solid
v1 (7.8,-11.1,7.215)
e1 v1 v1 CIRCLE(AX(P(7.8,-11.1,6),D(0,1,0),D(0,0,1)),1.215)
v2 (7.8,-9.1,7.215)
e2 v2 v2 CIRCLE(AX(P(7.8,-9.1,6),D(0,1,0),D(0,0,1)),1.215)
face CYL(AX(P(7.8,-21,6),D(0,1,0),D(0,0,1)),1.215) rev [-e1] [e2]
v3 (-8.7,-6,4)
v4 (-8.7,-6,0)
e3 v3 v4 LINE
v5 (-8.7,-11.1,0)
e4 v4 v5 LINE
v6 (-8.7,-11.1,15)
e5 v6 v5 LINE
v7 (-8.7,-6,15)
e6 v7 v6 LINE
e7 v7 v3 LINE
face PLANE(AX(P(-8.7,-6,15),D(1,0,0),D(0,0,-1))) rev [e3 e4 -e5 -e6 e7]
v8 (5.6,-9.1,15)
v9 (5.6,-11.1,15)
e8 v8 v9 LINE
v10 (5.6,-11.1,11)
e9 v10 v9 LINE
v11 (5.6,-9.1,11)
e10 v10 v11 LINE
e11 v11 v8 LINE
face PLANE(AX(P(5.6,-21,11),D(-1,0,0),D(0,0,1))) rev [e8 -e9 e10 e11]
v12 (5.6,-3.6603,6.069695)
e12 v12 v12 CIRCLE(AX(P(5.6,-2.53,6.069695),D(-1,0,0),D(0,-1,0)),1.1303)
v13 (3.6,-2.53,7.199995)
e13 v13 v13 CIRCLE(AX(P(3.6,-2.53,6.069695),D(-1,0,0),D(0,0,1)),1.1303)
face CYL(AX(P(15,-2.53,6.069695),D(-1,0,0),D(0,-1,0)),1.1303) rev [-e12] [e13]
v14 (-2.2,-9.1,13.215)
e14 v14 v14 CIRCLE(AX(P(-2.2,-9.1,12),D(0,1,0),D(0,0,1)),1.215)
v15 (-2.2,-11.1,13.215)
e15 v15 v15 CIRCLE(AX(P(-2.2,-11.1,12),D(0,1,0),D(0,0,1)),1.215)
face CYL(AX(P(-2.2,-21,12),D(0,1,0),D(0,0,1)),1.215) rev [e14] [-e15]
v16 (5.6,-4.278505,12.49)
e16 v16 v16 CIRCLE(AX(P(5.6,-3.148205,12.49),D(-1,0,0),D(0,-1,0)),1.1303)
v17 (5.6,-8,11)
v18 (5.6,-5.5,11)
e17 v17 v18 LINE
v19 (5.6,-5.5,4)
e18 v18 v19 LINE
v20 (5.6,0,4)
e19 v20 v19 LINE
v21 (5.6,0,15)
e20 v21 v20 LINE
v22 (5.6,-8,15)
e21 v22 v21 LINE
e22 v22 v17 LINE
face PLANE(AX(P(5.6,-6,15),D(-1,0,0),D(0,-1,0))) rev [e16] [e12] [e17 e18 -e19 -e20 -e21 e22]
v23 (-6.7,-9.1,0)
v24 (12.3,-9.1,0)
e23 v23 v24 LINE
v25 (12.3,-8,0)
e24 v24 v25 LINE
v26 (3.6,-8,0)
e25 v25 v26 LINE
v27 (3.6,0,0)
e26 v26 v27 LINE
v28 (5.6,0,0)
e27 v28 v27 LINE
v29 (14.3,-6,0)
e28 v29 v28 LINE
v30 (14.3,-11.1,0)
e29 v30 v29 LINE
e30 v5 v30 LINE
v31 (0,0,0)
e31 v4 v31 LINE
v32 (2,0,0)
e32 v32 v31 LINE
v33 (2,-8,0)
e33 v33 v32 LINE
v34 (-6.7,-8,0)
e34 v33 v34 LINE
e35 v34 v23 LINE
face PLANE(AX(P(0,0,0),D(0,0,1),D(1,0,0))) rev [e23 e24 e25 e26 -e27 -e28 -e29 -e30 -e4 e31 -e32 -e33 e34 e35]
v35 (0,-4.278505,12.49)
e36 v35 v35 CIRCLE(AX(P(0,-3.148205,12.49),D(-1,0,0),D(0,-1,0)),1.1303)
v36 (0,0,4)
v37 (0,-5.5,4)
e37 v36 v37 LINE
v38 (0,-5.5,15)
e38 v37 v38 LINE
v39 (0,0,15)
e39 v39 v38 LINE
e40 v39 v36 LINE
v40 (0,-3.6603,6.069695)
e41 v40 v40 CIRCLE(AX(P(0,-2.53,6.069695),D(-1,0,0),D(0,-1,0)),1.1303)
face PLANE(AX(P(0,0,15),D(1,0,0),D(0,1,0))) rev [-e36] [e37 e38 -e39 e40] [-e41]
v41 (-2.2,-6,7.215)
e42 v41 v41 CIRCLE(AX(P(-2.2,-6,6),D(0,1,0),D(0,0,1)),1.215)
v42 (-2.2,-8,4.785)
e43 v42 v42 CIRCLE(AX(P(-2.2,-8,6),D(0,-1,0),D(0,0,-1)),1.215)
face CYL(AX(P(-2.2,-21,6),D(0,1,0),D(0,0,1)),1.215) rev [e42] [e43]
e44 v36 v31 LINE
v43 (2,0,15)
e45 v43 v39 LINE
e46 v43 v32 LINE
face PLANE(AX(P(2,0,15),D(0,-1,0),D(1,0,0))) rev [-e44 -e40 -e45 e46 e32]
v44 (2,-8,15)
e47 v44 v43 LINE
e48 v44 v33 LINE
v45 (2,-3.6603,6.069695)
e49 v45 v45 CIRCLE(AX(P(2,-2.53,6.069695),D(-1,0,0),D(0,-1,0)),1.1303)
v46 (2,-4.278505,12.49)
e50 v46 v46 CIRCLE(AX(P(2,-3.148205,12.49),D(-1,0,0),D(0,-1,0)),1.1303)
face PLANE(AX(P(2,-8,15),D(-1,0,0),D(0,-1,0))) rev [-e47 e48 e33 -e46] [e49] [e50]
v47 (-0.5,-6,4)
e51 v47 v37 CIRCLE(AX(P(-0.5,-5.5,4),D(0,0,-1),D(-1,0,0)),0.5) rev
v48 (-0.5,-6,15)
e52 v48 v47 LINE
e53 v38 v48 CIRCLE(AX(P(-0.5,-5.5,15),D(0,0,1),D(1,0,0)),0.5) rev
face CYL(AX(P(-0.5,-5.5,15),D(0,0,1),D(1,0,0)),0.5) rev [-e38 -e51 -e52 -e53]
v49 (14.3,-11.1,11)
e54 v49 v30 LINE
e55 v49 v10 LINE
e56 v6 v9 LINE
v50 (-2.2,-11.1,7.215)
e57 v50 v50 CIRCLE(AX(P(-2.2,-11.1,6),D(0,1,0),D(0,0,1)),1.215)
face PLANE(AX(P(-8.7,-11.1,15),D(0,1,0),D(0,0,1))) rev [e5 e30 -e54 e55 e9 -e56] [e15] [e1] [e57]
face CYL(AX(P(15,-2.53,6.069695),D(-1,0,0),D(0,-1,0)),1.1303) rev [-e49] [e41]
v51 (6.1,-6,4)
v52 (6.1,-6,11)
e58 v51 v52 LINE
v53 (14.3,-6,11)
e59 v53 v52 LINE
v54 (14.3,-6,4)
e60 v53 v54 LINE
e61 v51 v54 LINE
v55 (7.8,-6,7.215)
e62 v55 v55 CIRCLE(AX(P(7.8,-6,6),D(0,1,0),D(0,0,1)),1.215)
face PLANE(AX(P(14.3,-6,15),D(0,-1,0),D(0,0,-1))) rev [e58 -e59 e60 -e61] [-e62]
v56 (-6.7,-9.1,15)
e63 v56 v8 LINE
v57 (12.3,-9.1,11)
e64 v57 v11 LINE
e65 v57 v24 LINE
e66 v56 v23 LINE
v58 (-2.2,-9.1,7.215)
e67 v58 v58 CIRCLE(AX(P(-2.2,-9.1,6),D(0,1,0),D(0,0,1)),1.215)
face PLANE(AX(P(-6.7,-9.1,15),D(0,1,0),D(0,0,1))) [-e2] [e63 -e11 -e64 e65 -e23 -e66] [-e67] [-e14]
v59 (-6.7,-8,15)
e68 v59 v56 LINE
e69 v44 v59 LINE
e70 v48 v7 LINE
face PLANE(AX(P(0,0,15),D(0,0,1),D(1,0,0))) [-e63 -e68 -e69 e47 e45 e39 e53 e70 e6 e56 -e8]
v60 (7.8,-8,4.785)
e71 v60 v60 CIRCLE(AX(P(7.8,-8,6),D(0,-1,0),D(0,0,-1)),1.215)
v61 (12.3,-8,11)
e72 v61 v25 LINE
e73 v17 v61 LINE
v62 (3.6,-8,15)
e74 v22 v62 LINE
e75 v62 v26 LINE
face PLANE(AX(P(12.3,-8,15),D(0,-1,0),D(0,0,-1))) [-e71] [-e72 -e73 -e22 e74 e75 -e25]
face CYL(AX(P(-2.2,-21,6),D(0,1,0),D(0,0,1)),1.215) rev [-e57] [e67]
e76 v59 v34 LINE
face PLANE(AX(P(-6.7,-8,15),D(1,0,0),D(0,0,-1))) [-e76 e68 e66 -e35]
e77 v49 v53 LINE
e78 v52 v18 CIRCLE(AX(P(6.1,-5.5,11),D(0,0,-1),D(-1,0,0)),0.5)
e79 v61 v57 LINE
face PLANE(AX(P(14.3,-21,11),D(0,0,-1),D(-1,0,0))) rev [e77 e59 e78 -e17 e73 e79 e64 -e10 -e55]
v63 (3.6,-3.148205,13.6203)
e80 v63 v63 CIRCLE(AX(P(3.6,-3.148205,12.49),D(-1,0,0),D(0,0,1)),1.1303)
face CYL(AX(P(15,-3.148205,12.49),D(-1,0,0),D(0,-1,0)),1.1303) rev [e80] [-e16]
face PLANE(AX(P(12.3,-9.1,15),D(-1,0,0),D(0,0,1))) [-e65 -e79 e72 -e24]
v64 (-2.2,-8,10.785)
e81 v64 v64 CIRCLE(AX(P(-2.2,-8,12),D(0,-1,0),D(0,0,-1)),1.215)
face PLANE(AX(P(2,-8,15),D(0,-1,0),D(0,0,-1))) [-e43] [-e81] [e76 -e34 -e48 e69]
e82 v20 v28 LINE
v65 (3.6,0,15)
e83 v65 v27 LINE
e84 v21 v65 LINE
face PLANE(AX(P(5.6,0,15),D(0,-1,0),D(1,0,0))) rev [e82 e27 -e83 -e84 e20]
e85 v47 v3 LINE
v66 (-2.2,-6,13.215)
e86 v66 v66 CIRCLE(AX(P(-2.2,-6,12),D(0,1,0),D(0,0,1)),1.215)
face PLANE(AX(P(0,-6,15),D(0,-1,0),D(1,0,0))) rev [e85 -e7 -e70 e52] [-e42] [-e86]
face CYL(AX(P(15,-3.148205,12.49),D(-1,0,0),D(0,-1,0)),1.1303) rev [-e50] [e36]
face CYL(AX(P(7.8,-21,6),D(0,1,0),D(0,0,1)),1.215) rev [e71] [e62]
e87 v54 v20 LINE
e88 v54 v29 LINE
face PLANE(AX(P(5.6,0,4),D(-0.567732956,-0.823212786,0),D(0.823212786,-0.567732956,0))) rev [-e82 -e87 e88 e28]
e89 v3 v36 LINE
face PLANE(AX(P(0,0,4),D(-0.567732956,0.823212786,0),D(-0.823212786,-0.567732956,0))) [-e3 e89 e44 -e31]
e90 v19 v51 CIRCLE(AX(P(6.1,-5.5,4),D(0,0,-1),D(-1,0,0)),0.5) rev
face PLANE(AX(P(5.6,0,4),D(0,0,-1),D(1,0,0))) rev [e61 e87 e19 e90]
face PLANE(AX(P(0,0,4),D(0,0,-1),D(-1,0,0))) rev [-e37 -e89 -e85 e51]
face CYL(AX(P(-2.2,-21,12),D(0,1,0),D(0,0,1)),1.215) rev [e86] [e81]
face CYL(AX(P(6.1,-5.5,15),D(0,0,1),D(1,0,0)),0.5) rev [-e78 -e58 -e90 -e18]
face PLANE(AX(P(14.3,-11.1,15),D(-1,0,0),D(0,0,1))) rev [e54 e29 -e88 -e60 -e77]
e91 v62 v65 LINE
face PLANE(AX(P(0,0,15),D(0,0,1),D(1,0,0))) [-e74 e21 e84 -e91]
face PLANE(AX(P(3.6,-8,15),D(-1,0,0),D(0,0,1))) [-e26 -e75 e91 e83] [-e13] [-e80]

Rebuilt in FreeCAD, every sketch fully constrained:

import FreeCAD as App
import Part
import Sketcher

V = App.Vector


def edges_at(feature, points):
    """Names of the edges that pass closest to the given points."""
    edges = feature.Shape.Edges
    near = lambda p: min(range(len(edges)), key=lambda i: edges[i].distToShape(Part.Vertex(*p))[0])
    return sorted({f"Edge{near(p) + 1}" for p in points})

doc = App.newDocument("Part")
body = doc.addObject("PartDesign::Body", "Body")

# Sketch on XY plane
sketch1 = body.newObject("Sketcher::SketchObject", "Sketch")
sketch1.AttachmentSupport = (doc.getObject("XY_Plane"), [""])
sketch1.MapMode = "FlatFace"
sketch1.addGeometry(Part.LineSegment(V(0, 0, 0), V(0, -6, 0)), False)
sketch1.addGeometry(Part.LineSegment(V(0, -6, 0), V(-8.7, -6, 0)), False)
sketch1.addGeometry(Part.LineSegment(V(-8.7, -6, 0), V(-8.7, -11.1, 0)), False)
sketch1.addGeometry(Part.LineSegment(V(-8.7, -11.1, 0), V(14.3, -11.1, 0)), False)
sketch1.addGeometry(Part.LineSegment(V(14.3, -11.1, 0), V(14.3, -6, 0)), False)
sketch1.addGeometry(Part.LineSegment(V(14.3, -6, 0), V(5.6, -6, 0)), False)
sketch1.addGeometry(Part.LineSegment(V(5.6, -6, 0), V(5.6, 0, 0)), False)
sketch1.addGeometry(Part.LineSegment(V(5.6, 0, 0), V(3.6, 0, 0)), False)
sketch1.addGeometry(Part.LineSegment(V(3.6, 0, 0), V(3.6, -8, 0)), False)
sketch1.addGeometry(Part.LineSegment(V(3.6, -8, 0), V(12.3, -8, 0)), False)
sketch1.addGeometry(Part.LineSegment(V(12.3, -8, 0), V(12.3, -9.1, 0)), False)
sketch1.addGeometry(Part.LineSegment(V(12.3, -9.1, 0), V(-6.7, -9.1, 0)), False)
sketch1.addGeometry(Part.LineSegment(V(-6.7, -9.1, 0), V(-6.7, -8, 0)), False)
sketch1.addGeometry(Part.LineSegment(V(-6.7, -8, 0), V(2, -8, 0)), False)
sketch1.addGeometry(Part.LineSegment(V(2, -8, 0), V(2, 0, 0)), False)
sketch1.addGeometry(Part.LineSegment(V(2, 0, 0), V(0, 0, 0)), False)
sketch1.addConstraint(Sketcher.Constraint("Coincident", 0, 2, 1, 1))
sketch1.addConstraint(Sketcher.Constraint("Coincident", 1, 2, 2, 1))
sketch1.addConstraint(Sketcher.Constraint("Coincident", 2, 2, 3, 1))
sketch1.addConstraint(Sketcher.Constraint("Coincident", 3, 2, 4, 1))
sketch1.addConstraint(Sketcher.Constraint("Coincident", 4, 2, 5, 1))
sketch1.addConstraint(Sketcher.Constraint("Coincident", 5, 2, 6, 1))
sketch1.addConstraint(Sketcher.Constraint("Coincident", 6, 2, 7, 1))
sketch1.addConstraint(Sketcher.Constraint("Coincident", 7, 2, 8, 1))
sketch1.addConstraint(Sketcher.Constraint("Coincident", 8, 2, 9, 1))
sketch1.addConstraint(Sketcher.Constraint("Coincident", 9, 2, 10, 1))
sketch1.addConstraint(Sketcher.Constraint("Coincident", 10, 2, 11, 1))
sketch1.addConstraint(Sketcher.Constraint("Coincident", 11, 2, 12, 1))
sketch1.addConstraint(Sketcher.Constraint("Coincident", 12, 2, 13, 1))
sketch1.addConstraint(Sketcher.Constraint("Coincident", 13, 2, 14, 1))
sketch1.addConstraint(Sketcher.Constraint("Coincident", 14, 2, 15, 1))
sketch1.addConstraint(Sketcher.Constraint("Coincident", 15, 2, 0, 1))
sketch1.addConstraint(Sketcher.Constraint("Vertical", 0))
sketch1.addConstraint(Sketcher.Constraint("Horizontal", 1))
sketch1.addConstraint(Sketcher.Constraint("Vertical", 2))
sketch1.addConstraint(Sketcher.Constraint("Horizontal", 3))
sketch1.addConstraint(Sketcher.Constraint("Vertical", 4))
sketch1.addConstraint(Sketcher.Constraint("Horizontal", 5))
sketch1.addConstraint(Sketcher.Constraint("Vertical", 6))
sketch1.addConstraint(Sketcher.Constraint("Horizontal", 7))
sketch1.addConstraint(Sketcher.Constraint("Vertical", 8))
sketch1.addConstraint(Sketcher.Constraint("Horizontal", 9))
sketch1.addConstraint(Sketcher.Constraint("Vertical", 10))
sketch1.addConstraint(Sketcher.Constraint("Horizontal", 11))
sketch1.addConstraint(Sketcher.Constraint("Vertical", 12))
sketch1.addConstraint(Sketcher.Constraint("Horizontal", 13))
sketch1.addConstraint(Sketcher.Constraint("Vertical", 14))
sketch1.addConstraint(Sketcher.Constraint("Horizontal", 15))
sketch1.addConstraint(Sketcher.Constraint("Coincident", 15, 2, -1, 1))
sketch1.addConstraint(Sketcher.Constraint("PointOnObject", 6, 2, -1))
sketch1.addConstraint(Sketcher.Constraint("Horizontal", 1, 2, 4, 2))
sketch1.addConstraint(Sketcher.Constraint("Horizontal", 9, 2, 12, 2))
sketch1.addConstraint(Sketcher.Constraint("Equal", 1, 5))
sketch1.addConstraint(Sketcher.Constraint("Equal", 5, 9))
sketch1.addConstraint(Sketcher.Constraint("Equal", 9, 13))
sketch1.addConstraint(Sketcher.Constraint("Equal", 7, 15))
sketch1.addConstraint(Sketcher.Constraint("DistanceX", 3, 1, 3, 2, 23.0))
sketch1.addConstraint(Sketcher.Constraint("DistanceX", 7, 2, 7, 1, 2.0))
sketch1.addConstraint(Sketcher.Constraint("DistanceY", 0, 2, 0, 1, 6.0))
sketch1.addConstraint(Sketcher.Constraint("DistanceY", 8, 2, 8, 1, 8.0))
sketch1.addConstraint(Sketcher.Constraint("DistanceX", 1, 2, 1, 1, 8.7))
sketch1.addConstraint(Sketcher.Constraint("DistanceY", 2, 2, 2, 1, 5.1))
sketch1.addConstraint(Sketcher.Constraint("DistanceY", 10, 2, 10, 1, 1.1))
pad1 = body.newObject("PartDesign::Pad", "Pad")
pad1.Profile = sketch1
pad1.Length = 15

# Sketch on XZ plane
sketch2 = body.newObject("Sketcher::SketchObject", "Sketch001")
sketch2.AttachmentSupport = (doc.getObject("XZ_Plane"), [""])
sketch2.MapMode = "FlatFace"
sketch2.AttachmentOffset = App.Placement(V(0, 0, 6), App.Rotation())
sketch2.addGeometry(Part.LineSegment(V(5.6, 11, 0), V(5.6, 15, 0)), False)
sketch2.addGeometry(Part.LineSegment(V(5.6, 15, 0), V(14.3, 15, 0)), False)
sketch2.addGeometry(Part.LineSegment(V(14.3, 15, 0), V(14.3, 11, 0)), False)
sketch2.addGeometry(Part.LineSegment(V(14.3, 11, 0), V(5.6, 11, 0)), False)
sketch2.addConstraint(Sketcher.Constraint("Coincident", 0, 2, 1, 1))
sketch2.addConstraint(Sketcher.Constraint("Coincident", 1, 2, 2, 1))
sketch2.addConstraint(Sketcher.Constraint("Coincident", 2, 2, 3, 1))
sketch2.addConstraint(Sketcher.Constraint("Coincident", 3, 2, 0, 1))
sketch2.addConstraint(Sketcher.Constraint("Vertical", 0))
sketch2.addConstraint(Sketcher.Constraint("Horizontal", 1))
sketch2.addConstraint(Sketcher.Constraint("Vertical", 2))
sketch2.addConstraint(Sketcher.Constraint("Horizontal", 3))
sketch2.addConstraint(Sketcher.Constraint("DistanceY", 0, 1, 0, 2, 4.0))
sketch2.addConstraint(Sketcher.Constraint("DistanceX", 1, 1, 1, 2, 8.7))
sketch2.addConstraint(Sketcher.Constraint("DistanceY", -1, 1, 0, 2, 15.0))
sketch2.addConstraint(Sketcher.Constraint("DistanceX", -1, 1, 0, 2, 5.6))
pocket1 = body.newObject("PartDesign::Pocket", "Pocket")
pocket1.Profile = sketch2
pocket1.Length = 15
pocket1.Reversed = True

# Sketch on YZ plane
sketch3 = body.newObject("Sketcher::SketchObject", "Sketch002")
sketch3.AttachmentSupport = (doc.getObject("YZ_Plane"), [""])
sketch3.MapMode = "FlatFace"
sketch3.addGeometry(Part.Circle(V(-3.148205, 12.49, 0), V(0, 0, 1), 1.1303), False)
sketch3.addGeometry(Part.Circle(V(-2.53, 6.069695, 0), V(0, 0, 1), 1.1303), False)
sketch3.addConstraint(Sketcher.Constraint("Equal", 0, 1))
sketch3.addConstraint(Sketcher.Constraint("Diameter", 0, 2.2606))
sketch3.addConstraint(Sketcher.Constraint("DistanceY", -1, 1, 0, 3, 12.49))
sketch3.addConstraint(Sketcher.Constraint("DistanceX", 1, 3, -1, 1, 2.53))
sketch3.addConstraint(Sketcher.Constraint("DistanceX", 0, 3, -1, 1, 3.148205))
sketch3.addConstraint(Sketcher.Constraint("DistanceY", -1, 1, 1, 3, 6.069695))
pocket2 = body.newObject("PartDesign::Pocket", "Pocket001")
pocket2.Profile = sketch3
pocket2.Length = 15
pocket2.Reversed = True

# Sketch on XZ plane
sketch4 = body.newObject("Sketcher::SketchObject", "Sketch003")
sketch4.AttachmentSupport = (doc.getObject("XZ_Plane"), [""])
sketch4.MapMode = "FlatFace"
sketch4.AttachmentOffset = App.Placement(V(0, 0, 6), App.Rotation())
sketch4.addGeometry(Part.Circle(V(-2.2, 12, 0), V(0, 0, 1), 1.215), False)
sketch4.addGeometry(Part.Circle(V(7.8, 6, 0), V(0, 0, 1), 1.215), False)
sketch4.addGeometry(Part.Circle(V(-2.2, 6, 0), V(0, 0, 1), 1.215), False)
sketch4.addConstraint(Sketcher.Constraint("Equal", 0, 1))
sketch4.addConstraint(Sketcher.Constraint("Equal", 1, 2))
sketch4.addConstraint(Sketcher.Constraint("Horizontal", 1, 3, 2, 3))
sketch4.addConstraint(Sketcher.Constraint("Vertical", 0, 3, 2, 3))
sketch4.addConstraint(Sketcher.Constraint("Diameter", 0, 2.43))
sketch4.addConstraint(Sketcher.Constraint("DistanceY", -1, 1, 0, 3, 12.0))
sketch4.addConstraint(Sketcher.Constraint("DistanceY", -1, 1, 1, 3, 6.0))
sketch4.addConstraint(Sketcher.Constraint("DistanceX", 0, 3, 1, 3, 10.0))
sketch4.addConstraint(Sketcher.Constraint("DistanceX", 0, 3, -1, 1, 2.2))
pocket3 = body.newObject("PartDesign::Pocket", "Pocket002")
pocket3.Profile = sketch4
pocket3.Length = 15
pocket3.Reversed = True

# Sketch on XY plane
sketch5 = body.newObject("Sketcher::SketchObject", "Sketch004")
sketch5.AttachmentSupport = (doc.getObject("XY_Plane"), [""])
sketch5.MapMode = "FlatFace"
sketch5.AttachmentOffset = App.Placement(V(0, 0, 2), App.Rotation())
sketch5.addGeometry(Part.LineSegment(V(0, -6, 0), V(-8.7, -6, 0)), False)
sketch5.addGeometry(Part.LineSegment(V(-8.7, -6, 0), V(0, 0, 0)), False)
sketch5.addGeometry(Part.LineSegment(V(0, 0, 0), V(0, -6, 0)), False)
sketch5.addConstraint(Sketcher.Constraint("Coincident", 0, 2, 1, 1))
sketch5.addConstraint(Sketcher.Constraint("Coincident", 1, 2, 2, 1))
sketch5.addConstraint(Sketcher.Constraint("Coincident", 2, 2, 0, 1))
sketch5.addConstraint(Sketcher.Constraint("Horizontal", 0))
sketch5.addConstraint(Sketcher.Constraint("Vertical", 2))
sketch5.addConstraint(Sketcher.Constraint("Coincident", 1, 2, -1, 1))
sketch5.addConstraint(Sketcher.Constraint("DistanceY", 2, 2, 2, 1, 6.0))
sketch5.addConstraint(Sketcher.Constraint("DistanceX", 0, 2, 0, 1, 8.7))
pad2 = body.newObject("PartDesign::Pad", "Pad001")
pad2.Profile = sketch5
pad2.Length = 4
pad2.Midplane = True
doc.recompute()

datumplane = body.newObject("PartDesign::Plane", "DatumPlane")
datumplane.AttachmentSupport = (doc.getObject("YZ_Plane"), [""])
datumplane.MapMode = "FlatFace"
datumplane.AttachmentOffset = App.Placement(V(0, 0, 2.8), App.Rotation())
mirrored = body.newObject("PartDesign::Mirrored", "Mirrored")
mirrored.Originals = [pad2]
mirrored.MirrorPlane = (datumplane, [""])
body.Tip = mirrored
doc.recompute()

fillet = body.newObject("PartDesign::Fillet", "Fillet")
fillet.Base = (mirrored, edges_at(mirrored, [(0, -6, 9.5), (5.6, -6, 7.5)]))
fillet.Radius = 0.5

doc.recompute()
